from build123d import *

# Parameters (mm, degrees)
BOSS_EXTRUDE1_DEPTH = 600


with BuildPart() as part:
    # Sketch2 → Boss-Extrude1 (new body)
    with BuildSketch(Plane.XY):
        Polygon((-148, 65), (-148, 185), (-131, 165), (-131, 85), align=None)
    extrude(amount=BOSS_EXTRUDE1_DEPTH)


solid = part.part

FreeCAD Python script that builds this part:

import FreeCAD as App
import Part
import Sketcher

V = App.Vector
Q = App.Units.Quantity


def add_polygon(sketch, points):
    """Adds a closed chain of lines whose ends are joined by coincident constraints."""
    first, n = sketch.GeometryCount, len(points)
    for a, b in zip(points, points[1:] + points[:1]):
        sketch.addGeometry(Part.LineSegment(App.Vector(*a, 0), App.Vector(*b, 0)), False)
    for i in range(n):
        sketch.addConstraint(Sketcher.Constraint("Coincident", first + i, 2, first + (i + 1) % n, 1))

doc = App.newDocument("Part")
params = doc.addObject("Spreadsheet::Sheet", "Params")
for row, (alias, value) in enumerate([
    ("sketch1_height", "120 mm"),
    ("sketch1_height2", "80 mm"),
    ("pad1_length", "600 mm"),
], start=1):
    params.set(f"A{row}", alias)
    params.set(f"B{row}", "=" + value)
    params.setAlias(f"B{row}", alias)

body = doc.addObject("PartDesign::Body", "Body")

sketch1 = body.newObject("Sketcher::SketchObject", "Sketch")
sketch1.AttachmentSupport = (doc.getObject("XY_Plane"), [""])
sketch1.MapMode = "FlatFace"
add_polygon(sketch1, [(-148, 185), (-148, 65), (-131, 85), (-131, 165)])
sketch1.addConstraint([
    Sketcher.Constraint("Vertical", 0),
    Sketcher.Constraint("Vertical", 2),
    Sketcher.Constraint("Equal", 1, 3),
    Sketcher.Constraint("DistanceY", 0, 2, 0, 1, Q("120 mm")),
    Sketcher.Constraint("DistanceY", 2, 1, 2, 2, Q("80 mm")),
    Sketcher.Constraint("DistanceX", 0, 2, -1, 1, Q("148 mm")),
    Sketcher.Constraint("DistanceY", -1, 1, 0, 2, Q("65 mm")),
    Sketcher.Constraint("DistanceX", 1, 2, -1, 1, Q("131 mm")),
])
sketch1.setExpression("Constraints[7]", "Params.sketch1_height")
sketch1.setExpression("Constraints[8]", "Params.sketch1_height2")
pad1 = body.newObject("PartDesign::Pad", "Pad")
pad1.Profile = sketch1
pad1.setExpression("Length", "Params.pad1_length")

doc.recompute()
